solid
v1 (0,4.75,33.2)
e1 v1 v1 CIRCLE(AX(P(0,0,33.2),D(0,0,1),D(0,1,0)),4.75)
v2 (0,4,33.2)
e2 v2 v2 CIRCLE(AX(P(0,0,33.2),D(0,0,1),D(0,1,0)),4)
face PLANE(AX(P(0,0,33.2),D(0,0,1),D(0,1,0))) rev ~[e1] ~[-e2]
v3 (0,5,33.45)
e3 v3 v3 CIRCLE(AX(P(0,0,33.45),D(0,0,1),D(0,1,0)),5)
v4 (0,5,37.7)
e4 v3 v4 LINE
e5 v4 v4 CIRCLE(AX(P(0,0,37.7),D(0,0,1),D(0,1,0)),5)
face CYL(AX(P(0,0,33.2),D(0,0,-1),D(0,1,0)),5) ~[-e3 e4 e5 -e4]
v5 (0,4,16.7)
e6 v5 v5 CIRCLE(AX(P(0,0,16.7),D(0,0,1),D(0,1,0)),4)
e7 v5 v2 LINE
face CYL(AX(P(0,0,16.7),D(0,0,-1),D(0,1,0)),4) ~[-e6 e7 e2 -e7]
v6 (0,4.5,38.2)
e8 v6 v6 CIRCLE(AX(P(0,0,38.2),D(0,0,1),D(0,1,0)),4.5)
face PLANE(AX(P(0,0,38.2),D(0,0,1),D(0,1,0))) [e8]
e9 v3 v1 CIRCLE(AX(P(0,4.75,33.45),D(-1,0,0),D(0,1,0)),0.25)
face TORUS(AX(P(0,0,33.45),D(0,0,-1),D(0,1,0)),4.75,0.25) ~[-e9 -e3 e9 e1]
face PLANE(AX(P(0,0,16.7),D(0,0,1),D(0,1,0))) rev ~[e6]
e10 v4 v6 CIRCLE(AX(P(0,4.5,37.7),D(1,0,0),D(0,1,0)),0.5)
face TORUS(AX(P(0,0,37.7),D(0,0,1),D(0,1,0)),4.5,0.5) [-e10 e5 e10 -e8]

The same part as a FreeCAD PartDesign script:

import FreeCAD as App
import Part
import Sketcher


def edges_at(feature, points):
    """Names of the edges that pass closest to the given points."""
    edges = feature.Shape.Edges
    near = lambda p: min(range(len(edges)), key=lambda i: edges[i].distToShape(Part.Vertex(*p))[0])
    return sorted({f"Edge{near(p) + 1}" for p in points})

doc = App.newDocument("Part")
body = doc.addObject("PartDesign::Body", "Body")

sketch1 = body.newObject("Sketcher::SketchObject", "Sketch")
sketch1.AttachmentSupport = (doc.getObject("XY_Plane"), [""])
sketch1.MapMode = "FlatFace"
sketch1.AttachmentOffset = App.Placement(App.Vector(0, 0, 16.7), App.Rotation())
sketch1.addGeometry(Part.Circle(App.Vector(0, 0, 0), App.Vector(0, 0, 1), 4), False)
sketch1.addConstraint(Sketcher.Constraint("Coincident", 0, 3, -1, 1))
sketch1.addConstraint(Sketcher.Constraint("Diameter", 0, 8.0))
pad1 = body.newObject("PartDesign::Pad", "Pad")
pad1.Profile = sketch1
pad1.Length = 16.5

sketch2 = body.newObject("Sketcher::SketchObject", "Sketch001")
sketch2.AttachmentSupport = (doc.getObject("XY_Plane"), [""])
sketch2.MapMode = "FlatFace"
sketch2.AttachmentOffset = App.Placement(App.Vector(0, 0, 33.2), App.Rotation())
sketch2.addGeometry(Part.Circle(App.Vector(0, 0, 0), App.Vector(0, 0, 1), 5), False)
sketch2.addConstraint(Sketcher.Constraint("Coincident", 0, 3, -1, 1))
sketch2.addConstraint(Sketcher.Constraint("Diameter", 0, 10.0))
pad2 = body.newObject("PartDesign::Pad", "Pad001")
pad2.Profile = sketch2
pad2.Length = 5
doc.recompute()

fillet = body.newObject("PartDesign::Fillet", "Fillet")
fillet.Base = (pad2, edges_at(pad2, [(0, -5, 33.2)]))
fillet.Radius = 0.25
doc.recompute()

fillet2 = body.newObject("PartDesign::Fillet", "Fillet001")
fillet2.Base = (fillet, edges_at(fillet, [(0, -5, 38.2)]))
fillet2.Radius = 0.5

doc.recompute()
